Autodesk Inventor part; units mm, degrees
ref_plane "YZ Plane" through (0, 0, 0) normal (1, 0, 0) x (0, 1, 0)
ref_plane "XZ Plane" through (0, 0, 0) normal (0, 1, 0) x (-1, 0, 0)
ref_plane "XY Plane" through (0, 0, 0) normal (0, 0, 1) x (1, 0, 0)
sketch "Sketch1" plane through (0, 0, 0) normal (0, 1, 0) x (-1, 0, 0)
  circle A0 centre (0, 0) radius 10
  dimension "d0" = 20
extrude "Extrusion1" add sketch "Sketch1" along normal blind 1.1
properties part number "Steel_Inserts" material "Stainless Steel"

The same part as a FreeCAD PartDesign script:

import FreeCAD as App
import Part
import Sketcher
Q = App.Units.Quantity

doc = App.newDocument("Part")
body = doc.addObject("PartDesign::Body", "Body")

sketch1 = body.newObject("Sketcher::SketchObject", "Sketch")
sketch1.AttachmentSupport = (doc.getObject("XZ_Plane"), [""])
sketch1.MapMode = "FlatFace"
sketch1.addGeometry(Part.Circle(App.Vector(0, 0, 0), App.Vector(0, 0, 1), 10), False)
sketch1.addConstraint([
    Sketcher.Constraint("Coincident", 0, 3, -1, 1),
    Sketcher.Constraint("Diameter", 0, Q("20 mm")),
])
pad1 = body.newObject("PartDesign::Pad", "Pad")
pad1.Profile = sketch1
pad1.Length = 1.1
pad1.Reversed = True

doc.recompute()
